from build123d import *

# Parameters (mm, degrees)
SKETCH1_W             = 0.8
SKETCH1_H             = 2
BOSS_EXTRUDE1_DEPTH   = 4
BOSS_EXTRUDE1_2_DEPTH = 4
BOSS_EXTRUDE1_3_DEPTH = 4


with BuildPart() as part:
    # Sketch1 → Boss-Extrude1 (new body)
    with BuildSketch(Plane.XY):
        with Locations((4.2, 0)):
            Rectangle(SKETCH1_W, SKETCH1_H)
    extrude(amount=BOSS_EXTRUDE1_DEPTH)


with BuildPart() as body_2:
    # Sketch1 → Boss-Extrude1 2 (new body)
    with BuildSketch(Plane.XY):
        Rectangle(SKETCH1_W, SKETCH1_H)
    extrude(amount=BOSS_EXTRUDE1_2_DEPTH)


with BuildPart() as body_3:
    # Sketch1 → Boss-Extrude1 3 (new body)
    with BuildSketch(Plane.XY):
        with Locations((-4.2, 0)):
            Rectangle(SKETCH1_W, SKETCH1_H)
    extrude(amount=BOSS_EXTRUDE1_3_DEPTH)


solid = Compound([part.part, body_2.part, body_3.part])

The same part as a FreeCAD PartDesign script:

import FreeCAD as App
import Part
import Sketcher

V = App.Vector
Q = App.Units.Quantity


def add_polygon(sketch, points):
    """Adds a closed chain of lines whose ends are joined by coincident constraints."""
    first, n = sketch.GeometryCount, len(points)
    for a, b in zip(points, points[1:] + points[:1]):
        sketch.addGeometry(Part.LineSegment(App.Vector(*a, 0), App.Vector(*b, 0)), False)
    for i in range(n):
        sketch.addConstraint(Sketcher.Constraint("Coincident", first + i, 2, first + (i + 1) % n, 1))

doc = App.newDocument("Part")
body = doc.addObject("PartDesign::Body", "Body")

sketch1 = doc.addObject("Sketcher::SketchObject", "Sketch")
body.addObject(sketch1)
sketch1.AttachmentSupport = (doc.XY_Plane, [""])
sketch1.MapMode = "FlatFace"
add_polygon(sketch1, [(3.8, 1), (3.8, -1), (4.6, -1), (4.6, 1)])
sketch1.addConstraint([
    Sketcher.Constraint("Vertical", 0),
    Sketcher.Constraint("Horizontal", 1),
    Sketcher.Constraint("Vertical", 2),
    Sketcher.Constraint("Horizontal", 3),
    Sketcher.Constraint("DistanceY", 0, 2, 0, 1, Q("2 mm")),
    Sketcher.Constraint("DistanceX", 1, 1, 1, 2, Q("0.8 mm")),
    Sketcher.Constraint("DistanceY", 0, 2, -1, 1, Q("1 mm")),
    Sketcher.Constraint("DistanceX", -1, 1, 0, 2, Q("3.8 mm")),
])
pad1 = doc.addObject("PartDesign::Pad", "Pad")
body.addObject(pad1)
pad1.Profile = sketch1
pad1.Length = 4
body2 = doc.addObject("PartDesign::Body", "Body001")

sketch2 = doc.addObject("Sketcher::SketchObject", "Sketch001")
body2.addObject(sketch2)
sketch2.AttachmentSupport = (doc.getObject("XY_Plane001"), [""])
sketch2.MapMode = "FlatFace"
add_polygon(sketch2, [(-0.4, 1), (-0.4, -1), (0.4, -1), (0.4, 1)])
sketch2.addConstraint([
    Sketcher.Constraint("Vertical", 0),
    Sketcher.Constraint("Horizontal", 1),
    Sketcher.Constraint("Vertical", 2),
    Sketcher.Constraint("Horizontal", 3),
    Sketcher.Constraint("Symmetric", 0, 2, 2, 2, -1, 1),
    Sketcher.Constraint("DistanceY", 0, 2, 0, 1, Q("2 mm")),
    Sketcher.Constraint("DistanceX", 1, 1, 1, 2, Q("0.8 mm")),
])
pad2 = doc.addObject("PartDesign::Pad", "Pad001")
body2.addObject(pad2)
pad2.Profile = sketch2
pad2.Length = 4
body3 = doc.addObject("PartDesign::Body", "Body002")

sketch3 = doc.addObject("Sketcher::SketchObject", "Sketch002")
body3.addObject(sketch3)
sketch3.AttachmentSupport = (doc.getObject("XY_Plane002"), [""])
sketch3.MapMode = "FlatFace"
add_polygon(sketch3, [(-4.6, 1), (-4.6, -1), (-3.8, -1), (-3.8, 1)])
sketch3.addConstraint([
    Sketcher.Constraint("Vertical", 0),
    Sketcher.Constraint("Horizontal", 1),
    Sketcher.Constraint("Vertical", 2),
    Sketcher.Constraint("Horizontal", 3),
    Sketcher.Constraint("DistanceY", 0, 2, 0, 1, Q("2 mm")),
    Sketcher.Constraint("DistanceX", 1, 1, 1, 2, Q("0.8 mm")),
    Sketcher.Constraint("DistanceY", 0, 2, -1, 1, Q("1 mm")),
    Sketcher.Constraint("DistanceX", 0, 2, -1, 1, Q("4.6 mm")),
])
pad3 = doc.addObject("PartDesign::Pad", "Pad002")
body3.addObject(pad3)
pad3.Profile = sketch3
pad3.Length = 4

doc.recompute()
